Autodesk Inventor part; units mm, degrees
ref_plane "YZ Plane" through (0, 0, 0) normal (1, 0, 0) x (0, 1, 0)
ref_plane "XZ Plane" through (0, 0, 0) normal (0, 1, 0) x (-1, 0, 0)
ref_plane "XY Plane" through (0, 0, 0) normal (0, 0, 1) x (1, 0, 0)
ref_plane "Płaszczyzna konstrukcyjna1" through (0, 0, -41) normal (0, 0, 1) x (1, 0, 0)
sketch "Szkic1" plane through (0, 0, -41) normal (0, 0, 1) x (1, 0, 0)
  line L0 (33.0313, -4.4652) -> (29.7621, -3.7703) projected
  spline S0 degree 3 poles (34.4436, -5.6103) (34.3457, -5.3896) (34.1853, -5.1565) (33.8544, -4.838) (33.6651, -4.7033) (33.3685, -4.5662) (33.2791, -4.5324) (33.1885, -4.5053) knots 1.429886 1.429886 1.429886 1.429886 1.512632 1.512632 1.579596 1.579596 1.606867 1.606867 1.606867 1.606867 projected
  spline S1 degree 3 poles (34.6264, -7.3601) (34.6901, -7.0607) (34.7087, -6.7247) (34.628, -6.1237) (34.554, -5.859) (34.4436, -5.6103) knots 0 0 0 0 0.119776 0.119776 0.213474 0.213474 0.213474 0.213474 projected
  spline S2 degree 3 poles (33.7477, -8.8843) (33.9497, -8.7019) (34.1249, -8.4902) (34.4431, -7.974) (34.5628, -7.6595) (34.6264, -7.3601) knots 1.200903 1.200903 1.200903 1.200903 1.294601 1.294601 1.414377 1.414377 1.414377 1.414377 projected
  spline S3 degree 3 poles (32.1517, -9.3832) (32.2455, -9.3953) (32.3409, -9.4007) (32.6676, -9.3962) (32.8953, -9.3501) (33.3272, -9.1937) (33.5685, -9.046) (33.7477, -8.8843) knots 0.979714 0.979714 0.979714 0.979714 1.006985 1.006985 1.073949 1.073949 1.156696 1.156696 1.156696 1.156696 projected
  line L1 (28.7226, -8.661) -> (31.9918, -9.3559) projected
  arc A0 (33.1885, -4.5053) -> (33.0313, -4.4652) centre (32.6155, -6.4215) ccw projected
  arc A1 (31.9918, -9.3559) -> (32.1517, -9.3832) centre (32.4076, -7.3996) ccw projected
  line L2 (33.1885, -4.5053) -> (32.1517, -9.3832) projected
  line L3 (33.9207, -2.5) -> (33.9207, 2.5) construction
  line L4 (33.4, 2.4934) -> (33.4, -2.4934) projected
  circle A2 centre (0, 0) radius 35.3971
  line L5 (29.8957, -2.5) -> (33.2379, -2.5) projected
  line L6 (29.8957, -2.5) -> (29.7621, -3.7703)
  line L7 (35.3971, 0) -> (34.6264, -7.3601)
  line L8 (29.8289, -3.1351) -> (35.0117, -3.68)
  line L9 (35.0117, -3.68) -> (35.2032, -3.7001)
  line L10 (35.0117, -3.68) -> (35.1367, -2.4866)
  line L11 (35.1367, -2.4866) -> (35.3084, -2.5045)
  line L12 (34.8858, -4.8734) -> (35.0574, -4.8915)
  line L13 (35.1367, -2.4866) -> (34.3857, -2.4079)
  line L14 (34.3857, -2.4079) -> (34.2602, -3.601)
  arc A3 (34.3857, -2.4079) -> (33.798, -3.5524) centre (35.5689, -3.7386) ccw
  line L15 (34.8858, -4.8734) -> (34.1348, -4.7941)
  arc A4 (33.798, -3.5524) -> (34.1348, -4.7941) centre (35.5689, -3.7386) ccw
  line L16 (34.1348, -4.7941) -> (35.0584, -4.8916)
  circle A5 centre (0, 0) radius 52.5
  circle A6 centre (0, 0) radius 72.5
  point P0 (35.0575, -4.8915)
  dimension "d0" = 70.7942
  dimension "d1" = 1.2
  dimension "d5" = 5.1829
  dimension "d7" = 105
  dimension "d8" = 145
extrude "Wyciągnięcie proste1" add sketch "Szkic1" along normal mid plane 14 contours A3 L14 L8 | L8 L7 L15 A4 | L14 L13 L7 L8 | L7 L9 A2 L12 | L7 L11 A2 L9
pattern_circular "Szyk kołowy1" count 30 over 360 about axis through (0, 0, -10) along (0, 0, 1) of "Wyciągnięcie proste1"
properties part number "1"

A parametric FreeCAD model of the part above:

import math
import FreeCAD as App
import Part
import Sketcher
from FreeCAD import Vector
Q = App.Units.Quantity

doc = App.newDocument("Part")
body = doc.addObject("PartDesign::Body", "Body")
body.AllowCompound = True

# Sketch on XY plane
sketch1 = body.newObject("Sketcher::SketchObject", "Sketch")
sketch1.AttachmentSupport = (doc.getObject("XY_Plane"), [""])
sketch1.MapMode = "FlatFace"
sketch1.AttachmentOffset = App.Placement(Vector(0, 0, -41), App.Rotation())
sketch1.addGeometry([
    Part.ArcOfCircle(Part.Circle(Vector(35.5689, -3.7386, 0), Vector(0, 0, 1), 1.780662), math.radians(131.64209), math.radians(173.997731)),  # 0
    Part.ArcOfCircle(Part.Circle(Vector(35.5689, -3.7386, 0), Vector(0, 0, 1), 1.780653), math.radians(173.997731), math.radians(216.35313)),  # 1
    Part.LineSegment(Vector(34.1348, -4.7941, 0), Vector(34.8858, -4.8734, 0)),  # 2
    Part.LineSegment(Vector(34.8858, -4.8734, 0), Vector(35.0574, -4.8915, 0)),  # 3
    Part.ArcOfCircle(Part.Circle(Vector(0, 0, 0), Vector(0, 0, 1), 35.3971), math.radians(-7.943103), math.radians(-4.057316)),  # 4
    Part.LineSegment(Vector(35.3084, -2.5045, 0), Vector(35.1367, -2.4866, 0)),  # 5
    Part.LineSegment(Vector(35.1367, -2.4866, 0), Vector(34.3857, -2.4079, 0)),  # 6
], False)
sketch1.addConstraint([
    Sketcher.Constraint("Coincident", 0, 2, 1, 1),
    Sketcher.Constraint("Coincident", 1, 2, 2, 1),
    Sketcher.Constraint("Coincident", 2, 2, 3, 1),
    Sketcher.Constraint("Coincident", 3, 2, 4, 1),
    Sketcher.Constraint("Coincident", 4, 2, 5, 1),
    Sketcher.Constraint("Coincident", 5, 2, 6, 1),
    Sketcher.Constraint("Coincident", 6, 2, 0, 1),
    Sketcher.Constraint("Coincident", 4, 3, -1, 1),
    Sketcher.Constraint("Coincident", 1, 3, 0, 3),
    Sketcher.Constraint("Radius", 4, Q("35.397 mm")),
    Sketcher.Constraint("Radius", 0, Q("1.7807 mm")),
    Sketcher.Constraint("Distance", 6, Q("0.755 mm")),
    Sketcher.Constraint("DistanceX", -1, 1, 0, 3, Q("35.569 mm")),
    Sketcher.Constraint("DistanceX", -1, 1, 0, 2, Q("33.798 mm")),
    Sketcher.Constraint("DistanceY", 1, 2, -1, 1, Q("4.794 mm")),
    Sketcher.Constraint("DistanceY", 6, 2, -1, 1, Q("2.408 mm")),
    Sketcher.Constraint("DistanceX", 1, 2, 0, 3, Q("1.434 mm")),
    Sketcher.Constraint("DistanceX", 1, 2, 2, 2, Q("0.751 mm")),
    Sketcher.Constraint("DistanceY", 2, 2, 0, 2, Q("1.321 mm")),
    Sketcher.Constraint("DistanceY", 3, 2, 2, 2, Q("0.018 mm")),
    Sketcher.Constraint("DistanceY", 0, 3, 4, 2, Q("1.234 mm")),
    Sketcher.Constraint("DistanceY", 4, 2, 5, 2, Q("0.018 mm")),
])
pad1 = body.newObject("PartDesign::Pad", "Pad")
pad1.Profile = sketch1
pad1.Length = 14
pad1.Midplane = True
doc.recompute()

polarpattern = body.newObject("PartDesign::PolarPattern", "PolarPattern")
polarpattern.Originals = [pad1]
polarpattern.Axis = (doc.getObject("Z_Axis"), [""])
polarpattern.Angle = 360
polarpattern.Occurrences = 30
body.Tip = polarpattern

doc.recompute()
